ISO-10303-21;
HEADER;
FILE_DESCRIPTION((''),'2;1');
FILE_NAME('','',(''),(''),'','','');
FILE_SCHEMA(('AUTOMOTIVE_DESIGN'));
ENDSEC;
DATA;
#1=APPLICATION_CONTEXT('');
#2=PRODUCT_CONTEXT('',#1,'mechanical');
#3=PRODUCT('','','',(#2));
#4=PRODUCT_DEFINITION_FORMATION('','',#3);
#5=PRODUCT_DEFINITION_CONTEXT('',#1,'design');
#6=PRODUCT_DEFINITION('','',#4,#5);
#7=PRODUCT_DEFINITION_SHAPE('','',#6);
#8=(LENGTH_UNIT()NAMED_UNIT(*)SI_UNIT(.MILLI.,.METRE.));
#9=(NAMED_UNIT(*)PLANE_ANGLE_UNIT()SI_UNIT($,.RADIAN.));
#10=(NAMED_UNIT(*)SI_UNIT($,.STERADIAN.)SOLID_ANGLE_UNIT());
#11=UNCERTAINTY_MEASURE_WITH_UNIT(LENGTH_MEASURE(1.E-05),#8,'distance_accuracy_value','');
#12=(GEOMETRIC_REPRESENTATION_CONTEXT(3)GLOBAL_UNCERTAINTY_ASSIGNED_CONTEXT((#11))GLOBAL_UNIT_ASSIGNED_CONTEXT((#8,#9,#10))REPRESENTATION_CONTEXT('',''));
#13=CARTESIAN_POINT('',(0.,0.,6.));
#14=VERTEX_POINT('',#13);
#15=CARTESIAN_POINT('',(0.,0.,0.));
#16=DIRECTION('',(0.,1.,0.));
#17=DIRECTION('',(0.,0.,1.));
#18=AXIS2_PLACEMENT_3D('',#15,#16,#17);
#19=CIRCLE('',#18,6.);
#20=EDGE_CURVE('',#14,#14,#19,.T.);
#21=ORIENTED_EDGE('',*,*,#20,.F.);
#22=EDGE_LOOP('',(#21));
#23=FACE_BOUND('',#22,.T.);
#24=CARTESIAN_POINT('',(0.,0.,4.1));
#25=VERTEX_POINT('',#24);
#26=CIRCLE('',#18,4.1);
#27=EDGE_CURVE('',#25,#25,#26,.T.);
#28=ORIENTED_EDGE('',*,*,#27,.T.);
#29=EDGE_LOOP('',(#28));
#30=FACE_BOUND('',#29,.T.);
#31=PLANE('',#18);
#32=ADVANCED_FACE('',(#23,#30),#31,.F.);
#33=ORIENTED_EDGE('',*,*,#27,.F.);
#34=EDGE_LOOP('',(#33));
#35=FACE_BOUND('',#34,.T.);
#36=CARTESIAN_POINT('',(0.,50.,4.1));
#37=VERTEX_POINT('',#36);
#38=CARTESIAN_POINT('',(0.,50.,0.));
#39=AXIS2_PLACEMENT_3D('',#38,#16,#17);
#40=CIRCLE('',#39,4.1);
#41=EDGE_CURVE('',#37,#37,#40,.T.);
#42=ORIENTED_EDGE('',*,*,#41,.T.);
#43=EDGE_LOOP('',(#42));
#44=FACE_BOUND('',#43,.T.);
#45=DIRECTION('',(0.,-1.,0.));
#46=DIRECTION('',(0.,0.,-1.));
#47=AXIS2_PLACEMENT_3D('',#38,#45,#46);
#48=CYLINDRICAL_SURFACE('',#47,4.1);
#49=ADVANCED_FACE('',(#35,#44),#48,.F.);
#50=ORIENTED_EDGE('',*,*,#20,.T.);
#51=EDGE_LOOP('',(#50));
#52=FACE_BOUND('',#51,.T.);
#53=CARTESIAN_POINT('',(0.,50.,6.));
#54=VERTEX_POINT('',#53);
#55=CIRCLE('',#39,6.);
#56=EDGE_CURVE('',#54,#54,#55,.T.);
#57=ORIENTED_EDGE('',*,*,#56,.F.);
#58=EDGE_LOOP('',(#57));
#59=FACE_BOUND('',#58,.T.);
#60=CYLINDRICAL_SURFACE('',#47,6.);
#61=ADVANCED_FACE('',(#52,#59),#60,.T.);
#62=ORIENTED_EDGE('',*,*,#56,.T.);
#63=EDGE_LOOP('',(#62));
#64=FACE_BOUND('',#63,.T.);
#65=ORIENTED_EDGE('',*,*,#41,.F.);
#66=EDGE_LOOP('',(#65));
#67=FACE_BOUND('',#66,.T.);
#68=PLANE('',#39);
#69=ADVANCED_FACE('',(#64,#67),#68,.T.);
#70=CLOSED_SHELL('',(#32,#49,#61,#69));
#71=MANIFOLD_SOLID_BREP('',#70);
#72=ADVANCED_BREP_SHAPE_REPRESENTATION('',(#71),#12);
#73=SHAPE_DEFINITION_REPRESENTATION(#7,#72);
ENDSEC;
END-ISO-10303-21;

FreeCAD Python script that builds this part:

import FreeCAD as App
import Part
import Sketcher
Q = App.Units.Quantity

doc = App.newDocument("Part")
body = doc.addObject("PartDesign::Body", "Body")

# Sketch on XZ plane
sketch1 = doc.addObject("Sketcher::SketchObject", "Sketch")
body.addObject(sketch1)
sketch1.AttachmentSupport = (doc.XZ_Plane, [""])
sketch1.MapMode = "FlatFace"
sketch1.addGeometry(Part.Circle(App.Vector(0, 0, 0), App.Vector(0, 0, 1), 6), False)
sketch1.addGeometry(Part.Circle(App.Vector(0, 0, 0), App.Vector(0, 0, 1), 4.1), False)
sketch1.addConstraint(Sketcher.Constraint("Coincident", 0, 3, -1, 1))
sketch1.addConstraint(Sketcher.Constraint("Coincident", 1, 3, -1, 1))
sketch1.addConstraint(Sketcher.Constraint("Diameter", 0, Q("12 mm")))
sketch1.addConstraint(Sketcher.Constraint("Diameter", 1, Q("8.2 mm")))
pad1 = doc.addObject("PartDesign::Pad", "Pad")
body.addObject(pad1)
pad1.Profile = sketch1
pad1.Length = 50
pad1.Reversed = True

doc.recompute()
